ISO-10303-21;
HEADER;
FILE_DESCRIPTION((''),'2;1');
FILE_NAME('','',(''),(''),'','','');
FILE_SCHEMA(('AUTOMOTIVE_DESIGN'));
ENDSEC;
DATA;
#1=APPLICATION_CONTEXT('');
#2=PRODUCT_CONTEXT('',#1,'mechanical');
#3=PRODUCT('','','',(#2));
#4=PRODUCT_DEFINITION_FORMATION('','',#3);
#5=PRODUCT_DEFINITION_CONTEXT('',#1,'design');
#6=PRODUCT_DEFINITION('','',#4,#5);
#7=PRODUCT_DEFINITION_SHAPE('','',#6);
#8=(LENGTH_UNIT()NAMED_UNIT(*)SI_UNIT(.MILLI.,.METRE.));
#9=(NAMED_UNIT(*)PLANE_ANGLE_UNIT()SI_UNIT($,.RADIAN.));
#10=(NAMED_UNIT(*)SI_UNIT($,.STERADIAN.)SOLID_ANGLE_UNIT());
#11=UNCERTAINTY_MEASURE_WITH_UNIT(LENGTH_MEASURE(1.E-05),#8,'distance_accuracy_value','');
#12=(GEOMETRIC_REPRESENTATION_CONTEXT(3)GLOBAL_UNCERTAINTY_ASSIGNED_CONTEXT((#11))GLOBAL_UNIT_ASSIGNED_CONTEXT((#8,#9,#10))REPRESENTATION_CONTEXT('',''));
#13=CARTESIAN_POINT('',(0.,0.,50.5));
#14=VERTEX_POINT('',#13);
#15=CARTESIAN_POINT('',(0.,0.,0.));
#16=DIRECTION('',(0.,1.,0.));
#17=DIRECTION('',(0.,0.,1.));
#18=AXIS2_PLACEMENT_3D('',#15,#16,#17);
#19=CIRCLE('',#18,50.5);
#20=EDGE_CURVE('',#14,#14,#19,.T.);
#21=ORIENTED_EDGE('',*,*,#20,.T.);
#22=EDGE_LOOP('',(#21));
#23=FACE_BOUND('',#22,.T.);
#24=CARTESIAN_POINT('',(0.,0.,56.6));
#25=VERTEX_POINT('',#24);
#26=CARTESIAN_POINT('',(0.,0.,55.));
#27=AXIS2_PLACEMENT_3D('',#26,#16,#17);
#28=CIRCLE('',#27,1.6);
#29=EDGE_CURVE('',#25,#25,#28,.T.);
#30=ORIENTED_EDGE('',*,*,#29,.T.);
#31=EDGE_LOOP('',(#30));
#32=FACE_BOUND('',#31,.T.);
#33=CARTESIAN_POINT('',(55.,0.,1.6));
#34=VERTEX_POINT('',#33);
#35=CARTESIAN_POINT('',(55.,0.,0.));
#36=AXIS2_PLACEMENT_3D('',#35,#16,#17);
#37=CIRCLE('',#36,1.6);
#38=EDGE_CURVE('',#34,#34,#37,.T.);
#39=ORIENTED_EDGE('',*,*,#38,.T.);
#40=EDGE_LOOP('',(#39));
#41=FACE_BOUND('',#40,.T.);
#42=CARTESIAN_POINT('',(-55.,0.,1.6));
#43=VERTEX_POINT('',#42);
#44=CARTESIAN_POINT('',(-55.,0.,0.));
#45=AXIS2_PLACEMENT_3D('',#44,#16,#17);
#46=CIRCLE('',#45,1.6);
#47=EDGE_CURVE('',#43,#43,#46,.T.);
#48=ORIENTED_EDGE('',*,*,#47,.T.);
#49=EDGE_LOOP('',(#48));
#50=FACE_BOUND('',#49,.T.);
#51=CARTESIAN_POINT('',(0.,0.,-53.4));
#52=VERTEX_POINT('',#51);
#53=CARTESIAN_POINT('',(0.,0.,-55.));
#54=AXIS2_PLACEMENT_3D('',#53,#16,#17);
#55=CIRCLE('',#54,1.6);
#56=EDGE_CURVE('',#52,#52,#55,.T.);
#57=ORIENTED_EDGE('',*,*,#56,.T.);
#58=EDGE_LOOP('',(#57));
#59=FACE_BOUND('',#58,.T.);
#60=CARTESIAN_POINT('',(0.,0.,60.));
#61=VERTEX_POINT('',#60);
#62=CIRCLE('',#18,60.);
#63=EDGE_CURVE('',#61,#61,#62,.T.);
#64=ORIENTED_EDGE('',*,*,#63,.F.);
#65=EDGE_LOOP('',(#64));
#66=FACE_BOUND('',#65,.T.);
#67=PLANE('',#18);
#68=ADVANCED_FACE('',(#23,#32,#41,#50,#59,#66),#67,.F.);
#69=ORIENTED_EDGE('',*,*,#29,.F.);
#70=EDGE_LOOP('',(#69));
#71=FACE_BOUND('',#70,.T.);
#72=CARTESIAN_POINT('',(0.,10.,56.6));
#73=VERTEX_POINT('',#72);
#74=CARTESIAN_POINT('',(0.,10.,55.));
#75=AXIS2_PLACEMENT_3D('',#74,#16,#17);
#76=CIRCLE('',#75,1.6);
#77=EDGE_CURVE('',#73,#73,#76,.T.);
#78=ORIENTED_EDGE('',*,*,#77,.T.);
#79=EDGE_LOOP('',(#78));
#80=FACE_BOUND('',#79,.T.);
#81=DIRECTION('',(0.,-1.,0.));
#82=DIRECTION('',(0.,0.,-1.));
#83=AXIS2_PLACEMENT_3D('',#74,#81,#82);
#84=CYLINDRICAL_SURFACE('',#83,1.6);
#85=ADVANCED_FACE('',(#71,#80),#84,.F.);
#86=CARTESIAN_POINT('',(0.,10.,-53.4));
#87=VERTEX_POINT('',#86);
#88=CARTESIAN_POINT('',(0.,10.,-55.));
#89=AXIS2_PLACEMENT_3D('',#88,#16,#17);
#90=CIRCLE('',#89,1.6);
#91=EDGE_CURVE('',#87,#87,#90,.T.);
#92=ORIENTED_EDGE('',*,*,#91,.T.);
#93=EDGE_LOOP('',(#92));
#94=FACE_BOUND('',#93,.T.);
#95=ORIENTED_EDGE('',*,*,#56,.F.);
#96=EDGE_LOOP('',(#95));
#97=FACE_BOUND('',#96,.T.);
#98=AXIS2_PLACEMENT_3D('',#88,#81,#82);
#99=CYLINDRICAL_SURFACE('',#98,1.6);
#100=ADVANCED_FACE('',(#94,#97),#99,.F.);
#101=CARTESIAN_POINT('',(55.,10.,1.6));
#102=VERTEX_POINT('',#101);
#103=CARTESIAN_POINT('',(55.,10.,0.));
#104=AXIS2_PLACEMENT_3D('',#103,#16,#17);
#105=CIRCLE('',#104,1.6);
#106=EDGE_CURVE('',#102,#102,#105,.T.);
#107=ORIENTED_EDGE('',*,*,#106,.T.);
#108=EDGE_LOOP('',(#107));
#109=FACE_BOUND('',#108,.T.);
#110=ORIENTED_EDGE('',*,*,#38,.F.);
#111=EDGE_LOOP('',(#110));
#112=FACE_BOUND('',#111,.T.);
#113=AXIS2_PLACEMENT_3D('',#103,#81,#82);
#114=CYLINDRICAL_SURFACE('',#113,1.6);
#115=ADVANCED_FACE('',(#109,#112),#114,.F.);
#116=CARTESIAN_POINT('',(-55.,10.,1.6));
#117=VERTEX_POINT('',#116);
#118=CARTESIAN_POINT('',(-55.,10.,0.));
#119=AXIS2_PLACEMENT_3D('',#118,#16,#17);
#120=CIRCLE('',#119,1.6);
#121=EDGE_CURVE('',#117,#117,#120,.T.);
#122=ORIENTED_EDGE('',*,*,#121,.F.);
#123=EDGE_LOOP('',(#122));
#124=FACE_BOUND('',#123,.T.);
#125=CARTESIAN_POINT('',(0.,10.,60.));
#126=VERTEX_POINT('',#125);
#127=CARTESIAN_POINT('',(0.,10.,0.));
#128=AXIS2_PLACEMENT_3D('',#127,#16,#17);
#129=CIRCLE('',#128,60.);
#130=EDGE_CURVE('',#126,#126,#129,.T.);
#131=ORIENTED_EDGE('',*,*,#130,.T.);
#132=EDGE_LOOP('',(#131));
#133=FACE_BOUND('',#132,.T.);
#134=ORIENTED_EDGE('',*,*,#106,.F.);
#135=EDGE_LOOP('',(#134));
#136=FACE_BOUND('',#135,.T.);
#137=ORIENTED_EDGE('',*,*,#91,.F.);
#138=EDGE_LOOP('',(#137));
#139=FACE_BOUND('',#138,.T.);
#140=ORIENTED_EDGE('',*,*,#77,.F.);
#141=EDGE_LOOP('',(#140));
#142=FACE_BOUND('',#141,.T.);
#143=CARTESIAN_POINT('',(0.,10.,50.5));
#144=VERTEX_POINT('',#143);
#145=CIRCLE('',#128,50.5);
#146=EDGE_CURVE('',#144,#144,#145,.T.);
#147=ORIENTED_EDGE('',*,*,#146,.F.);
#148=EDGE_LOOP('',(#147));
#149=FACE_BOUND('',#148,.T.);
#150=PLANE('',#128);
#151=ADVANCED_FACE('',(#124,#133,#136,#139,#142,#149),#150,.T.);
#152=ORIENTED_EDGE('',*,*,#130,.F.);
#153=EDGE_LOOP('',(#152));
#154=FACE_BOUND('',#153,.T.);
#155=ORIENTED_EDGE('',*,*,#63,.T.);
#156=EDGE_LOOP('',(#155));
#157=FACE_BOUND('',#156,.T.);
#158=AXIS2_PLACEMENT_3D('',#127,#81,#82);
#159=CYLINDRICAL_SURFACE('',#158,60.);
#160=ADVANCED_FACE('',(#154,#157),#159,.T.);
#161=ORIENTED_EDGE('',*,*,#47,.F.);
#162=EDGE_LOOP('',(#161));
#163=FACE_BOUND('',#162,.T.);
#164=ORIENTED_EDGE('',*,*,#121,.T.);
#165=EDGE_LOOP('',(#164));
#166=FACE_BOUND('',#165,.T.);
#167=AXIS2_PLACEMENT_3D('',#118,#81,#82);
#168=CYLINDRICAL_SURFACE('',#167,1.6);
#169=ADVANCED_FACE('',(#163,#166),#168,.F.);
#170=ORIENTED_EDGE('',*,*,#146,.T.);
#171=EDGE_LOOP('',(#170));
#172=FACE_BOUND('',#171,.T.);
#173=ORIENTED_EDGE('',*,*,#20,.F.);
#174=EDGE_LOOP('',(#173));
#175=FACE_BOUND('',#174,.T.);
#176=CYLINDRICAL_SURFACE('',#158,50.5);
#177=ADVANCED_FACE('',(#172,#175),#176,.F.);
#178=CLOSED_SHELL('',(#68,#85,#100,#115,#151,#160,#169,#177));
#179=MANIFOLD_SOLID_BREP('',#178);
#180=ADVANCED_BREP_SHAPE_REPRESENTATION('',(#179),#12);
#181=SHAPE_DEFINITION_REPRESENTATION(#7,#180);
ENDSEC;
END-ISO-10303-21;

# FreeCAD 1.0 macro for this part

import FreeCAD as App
import Part
import Sketcher

V = App.Vector
Q = App.Units.Quantity

doc = App.newDocument("Part")
body = doc.addObject("PartDesign::Body", "Body")

# Sketch on XZ plane
sketch1 = body.newObject("Sketcher::SketchObject", "Sketch")
sketch1.AttachmentSupport = (doc.getObject("XZ_Plane"), [""])
sketch1.MapMode = "FlatFace"
sketch1.addGeometry(Part.Circle(V(0, 0, 0), V(0, 0, 1), 60), False)
sketch1.addGeometry(Part.Circle(V(0, -55, 0), V(0, 0, 1), 1.6), False)
sketch1.addGeometry(Part.Circle(V(-55, 0, 0), V(0, 0, 1), 1.6), False)
sketch1.addGeometry(Part.Circle(V(55, 0, 0), V(0, 0, 1), 1.6), False)
sketch1.addGeometry(Part.Circle(V(0, 0, 0), V(0, 0, 1), 50.5), False)
sketch1.addGeometry(Part.Circle(V(0, 55, 0), V(0, 0, 1), 1.6), False)
sketch1.addConstraint(Sketcher.Constraint("Coincident", 0, 3, -1, 1))
sketch1.addConstraint(Sketcher.Constraint("Coincident", 4, 3, -1, 1))
sketch1.addConstraint(Sketcher.Constraint("Equal", 1, 2))
sketch1.addConstraint(Sketcher.Constraint("Equal", 2, 3))
sketch1.addConstraint(Sketcher.Constraint("Equal", 3, 5))
sketch1.addConstraint(Sketcher.Constraint("Symmetric", 2, 3, 3, 3, -1, 1))
sketch1.addConstraint(Sketcher.Constraint("Symmetric", 1, 3, 5, 3, -1, 1))
sketch1.addConstraint(Sketcher.Constraint("PointOnObject", 1, 3, -2))
sketch1.addConstraint(Sketcher.Constraint("PointOnObject", 2, 3, -1))
sketch1.addConstraint(Sketcher.Constraint("Diameter", 0, Q("120 mm")))
sketch1.addConstraint(Sketcher.Constraint("Diameter", 4, Q("101 mm")))
sketch1.addConstraint(Sketcher.Constraint("Diameter", 1, Q("3.2 mm")))
sketch1.addConstraint(Sketcher.Constraint("DistanceY", 1, 3, -1, 1, Q("55 mm")))
sketch1.addConstraint(Sketcher.Constraint("DistanceX", 2, 3, -1, 1, Q("55 mm")))
pad1 = body.newObject("PartDesign::Pad", "Pad")
pad1.Profile = sketch1
pad1.Length = 10
pad1.Reversed = True

doc.recompute()
